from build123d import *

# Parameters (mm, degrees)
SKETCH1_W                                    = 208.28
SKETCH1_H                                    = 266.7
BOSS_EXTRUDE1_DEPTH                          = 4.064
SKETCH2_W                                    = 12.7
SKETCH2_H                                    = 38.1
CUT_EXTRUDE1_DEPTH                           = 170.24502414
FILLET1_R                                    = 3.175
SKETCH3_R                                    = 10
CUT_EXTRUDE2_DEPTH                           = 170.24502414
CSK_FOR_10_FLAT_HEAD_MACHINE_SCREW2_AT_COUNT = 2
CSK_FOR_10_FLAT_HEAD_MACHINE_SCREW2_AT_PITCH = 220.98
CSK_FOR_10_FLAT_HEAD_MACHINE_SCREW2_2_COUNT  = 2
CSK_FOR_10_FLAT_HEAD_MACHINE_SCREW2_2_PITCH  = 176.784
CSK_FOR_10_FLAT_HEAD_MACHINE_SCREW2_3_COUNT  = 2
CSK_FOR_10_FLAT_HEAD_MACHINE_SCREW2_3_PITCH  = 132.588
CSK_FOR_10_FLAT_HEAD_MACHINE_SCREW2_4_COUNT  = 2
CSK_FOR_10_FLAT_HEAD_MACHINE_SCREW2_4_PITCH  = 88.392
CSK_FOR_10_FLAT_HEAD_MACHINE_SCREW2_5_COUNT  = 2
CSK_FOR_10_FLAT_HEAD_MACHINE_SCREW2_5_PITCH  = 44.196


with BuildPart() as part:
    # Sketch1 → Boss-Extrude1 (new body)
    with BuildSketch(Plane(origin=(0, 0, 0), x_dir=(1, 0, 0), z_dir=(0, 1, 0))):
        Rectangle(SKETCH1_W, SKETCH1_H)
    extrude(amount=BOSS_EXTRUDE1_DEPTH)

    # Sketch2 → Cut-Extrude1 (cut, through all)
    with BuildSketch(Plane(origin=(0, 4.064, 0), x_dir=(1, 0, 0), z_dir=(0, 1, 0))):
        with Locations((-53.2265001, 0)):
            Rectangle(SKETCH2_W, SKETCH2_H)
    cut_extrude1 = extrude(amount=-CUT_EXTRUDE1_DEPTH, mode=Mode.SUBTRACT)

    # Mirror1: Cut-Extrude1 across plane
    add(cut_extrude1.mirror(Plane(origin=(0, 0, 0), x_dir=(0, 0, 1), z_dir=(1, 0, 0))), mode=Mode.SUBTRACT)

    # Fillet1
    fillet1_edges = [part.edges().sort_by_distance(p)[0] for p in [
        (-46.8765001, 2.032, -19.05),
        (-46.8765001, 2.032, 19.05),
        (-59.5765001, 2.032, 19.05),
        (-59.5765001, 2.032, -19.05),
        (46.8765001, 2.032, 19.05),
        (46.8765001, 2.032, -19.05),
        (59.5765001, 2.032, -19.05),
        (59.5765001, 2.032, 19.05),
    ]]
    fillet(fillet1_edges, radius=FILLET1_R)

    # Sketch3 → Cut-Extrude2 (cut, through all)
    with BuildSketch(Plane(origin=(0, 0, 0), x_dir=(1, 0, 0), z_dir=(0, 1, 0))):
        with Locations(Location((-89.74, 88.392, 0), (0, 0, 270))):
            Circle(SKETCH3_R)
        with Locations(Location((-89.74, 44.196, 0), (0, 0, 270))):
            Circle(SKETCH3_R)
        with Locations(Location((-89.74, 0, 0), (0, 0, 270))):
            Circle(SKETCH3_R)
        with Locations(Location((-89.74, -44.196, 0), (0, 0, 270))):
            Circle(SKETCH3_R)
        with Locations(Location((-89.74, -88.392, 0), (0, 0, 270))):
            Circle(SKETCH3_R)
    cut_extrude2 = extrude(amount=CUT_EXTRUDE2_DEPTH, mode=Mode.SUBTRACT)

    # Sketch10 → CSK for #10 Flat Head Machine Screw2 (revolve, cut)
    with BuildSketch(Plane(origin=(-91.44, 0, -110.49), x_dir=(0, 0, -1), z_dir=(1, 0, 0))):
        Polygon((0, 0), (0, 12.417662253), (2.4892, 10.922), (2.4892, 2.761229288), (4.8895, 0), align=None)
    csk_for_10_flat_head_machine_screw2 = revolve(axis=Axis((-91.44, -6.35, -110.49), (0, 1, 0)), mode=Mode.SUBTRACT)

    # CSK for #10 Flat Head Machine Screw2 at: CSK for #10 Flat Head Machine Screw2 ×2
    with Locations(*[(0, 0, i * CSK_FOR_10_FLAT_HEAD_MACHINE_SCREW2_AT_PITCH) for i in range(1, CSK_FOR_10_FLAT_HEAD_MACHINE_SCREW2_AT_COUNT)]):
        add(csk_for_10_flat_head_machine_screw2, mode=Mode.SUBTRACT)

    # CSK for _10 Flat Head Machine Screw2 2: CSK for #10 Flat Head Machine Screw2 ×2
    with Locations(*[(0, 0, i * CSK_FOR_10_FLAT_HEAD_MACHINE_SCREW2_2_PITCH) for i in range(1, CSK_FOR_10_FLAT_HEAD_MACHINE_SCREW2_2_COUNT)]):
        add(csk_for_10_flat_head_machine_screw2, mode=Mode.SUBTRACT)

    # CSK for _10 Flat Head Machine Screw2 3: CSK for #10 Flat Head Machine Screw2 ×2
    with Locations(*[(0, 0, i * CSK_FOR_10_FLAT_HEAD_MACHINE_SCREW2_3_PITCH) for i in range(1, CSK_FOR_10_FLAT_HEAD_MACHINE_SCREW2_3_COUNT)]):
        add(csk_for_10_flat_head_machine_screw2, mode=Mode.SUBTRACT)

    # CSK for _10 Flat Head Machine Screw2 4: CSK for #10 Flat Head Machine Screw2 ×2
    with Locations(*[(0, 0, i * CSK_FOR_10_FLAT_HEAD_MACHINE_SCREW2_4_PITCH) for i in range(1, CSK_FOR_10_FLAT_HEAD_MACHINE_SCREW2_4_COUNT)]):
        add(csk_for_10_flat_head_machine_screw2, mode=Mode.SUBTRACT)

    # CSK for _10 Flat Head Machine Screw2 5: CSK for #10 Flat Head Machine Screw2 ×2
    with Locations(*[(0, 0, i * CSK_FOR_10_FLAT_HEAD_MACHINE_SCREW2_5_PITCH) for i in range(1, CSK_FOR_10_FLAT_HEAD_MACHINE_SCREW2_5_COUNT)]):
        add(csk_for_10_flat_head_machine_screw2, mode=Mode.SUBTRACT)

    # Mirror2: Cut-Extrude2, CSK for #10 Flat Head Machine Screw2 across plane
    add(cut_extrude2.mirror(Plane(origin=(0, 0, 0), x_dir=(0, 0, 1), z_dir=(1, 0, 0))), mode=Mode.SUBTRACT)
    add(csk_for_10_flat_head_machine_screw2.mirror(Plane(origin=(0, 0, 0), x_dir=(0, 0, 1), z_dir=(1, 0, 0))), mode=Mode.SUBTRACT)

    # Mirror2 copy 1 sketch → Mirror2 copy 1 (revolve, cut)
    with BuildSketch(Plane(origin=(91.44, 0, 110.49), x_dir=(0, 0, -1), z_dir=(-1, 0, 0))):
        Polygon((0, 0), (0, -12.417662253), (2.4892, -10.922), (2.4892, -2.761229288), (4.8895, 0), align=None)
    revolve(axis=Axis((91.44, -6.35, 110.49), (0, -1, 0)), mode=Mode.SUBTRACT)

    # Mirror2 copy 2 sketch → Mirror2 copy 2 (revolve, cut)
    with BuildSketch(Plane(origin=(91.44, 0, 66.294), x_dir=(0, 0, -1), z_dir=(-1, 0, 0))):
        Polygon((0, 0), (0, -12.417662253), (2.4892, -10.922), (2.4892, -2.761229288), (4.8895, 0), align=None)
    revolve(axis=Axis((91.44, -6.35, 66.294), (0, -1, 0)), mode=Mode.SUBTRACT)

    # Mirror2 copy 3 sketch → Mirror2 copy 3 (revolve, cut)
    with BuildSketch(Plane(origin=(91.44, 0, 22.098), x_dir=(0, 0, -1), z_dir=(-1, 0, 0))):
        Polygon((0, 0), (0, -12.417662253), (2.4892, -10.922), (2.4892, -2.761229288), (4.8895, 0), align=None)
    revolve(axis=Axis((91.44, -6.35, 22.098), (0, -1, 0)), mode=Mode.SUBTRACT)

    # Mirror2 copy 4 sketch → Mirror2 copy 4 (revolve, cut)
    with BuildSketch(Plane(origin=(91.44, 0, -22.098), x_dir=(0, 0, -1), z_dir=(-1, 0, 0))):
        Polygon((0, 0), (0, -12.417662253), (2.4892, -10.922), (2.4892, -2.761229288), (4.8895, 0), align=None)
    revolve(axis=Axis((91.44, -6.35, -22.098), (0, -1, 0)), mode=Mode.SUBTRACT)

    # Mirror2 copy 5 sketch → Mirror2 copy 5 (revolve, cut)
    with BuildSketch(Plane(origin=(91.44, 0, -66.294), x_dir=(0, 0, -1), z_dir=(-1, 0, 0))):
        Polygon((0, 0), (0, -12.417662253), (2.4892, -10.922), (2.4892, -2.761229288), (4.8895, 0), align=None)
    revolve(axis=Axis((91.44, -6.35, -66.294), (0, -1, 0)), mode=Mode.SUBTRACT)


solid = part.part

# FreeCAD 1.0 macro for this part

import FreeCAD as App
import Part
import Sketcher
Q = App.Units.Quantity


def edges_at(feature, points):
    """Names of the edges that pass closest to the given points."""
    edges = feature.Shape.Edges
    near = lambda p: min(range(len(edges)), key=lambda i: edges[i].distToShape(Part.Vertex(*p))[0])
    return sorted({f"Edge{near(p) + 1}" for p in points})


def add_polygon(sketch, points):
    """Adds a closed chain of lines whose ends are joined by coincident constraints."""
    first, n = sketch.GeometryCount, len(points)
    for a, b in zip(points, points[1:] + points[:1]):
        sketch.addGeometry(Part.LineSegment(App.Vector(*a, 0), App.Vector(*b, 0)), False)
    for i in range(n):
        sketch.addConstraint(Sketcher.Constraint("Coincident", first + i, 2, first + (i + 1) % n, 1))

doc = App.newDocument("Part")
params = doc.addObject("Spreadsheet::Sheet", "Params")
for row, (alias, value) in enumerate([
    ("sketch1_width", "8.2 in"),
    ("sketch1_height", "10.5 in"),
    ("pad1_length", "0.16 in"),
    ("sketch2_width", "0.5 in"),
    ("sketch2_height", "1.5 in"),
    ("fillet_radius", "0.125 in"),
    ("groove_angle", "360 deg"),
    ("linearpattern_pitch", "8.7 in"),
    ("linearpattern2_pitch", "6.96 in"),
    ("linearpattern3_pitch", "5.22 in"),
    ("linearpattern4_pitch", "3.48 in"),
    ("linearpattern5_pitch", "1.74 in"),
    ("groove2_angle", "360 deg"),
    ("groove3_angle", "360 deg"),
    ("groove4_angle", "360 deg"),
    ("groove5_angle", "360 deg"),
    ("groove6_angle", "360 deg"),
], start=1):
    params.set(f"A{row}", alias)
    params.set(f"B{row}", "=" + value)
    params.setAlias(f"B{row}", alias)

body = doc.addObject("PartDesign::Body", "Body")

# Sketch on XZ plane
sketch1 = body.newObject("Sketcher::SketchObject", "Sketch")
sketch1.AttachmentSupport = (doc.getObject("XZ_Plane"), [""])
sketch1.MapMode = "FlatFace"
add_polygon(sketch1, [(-104, -133), (-104, 133), (104, 133), (104, -133)])  # lines 0-3
sketch1.addConstraint(Sketcher.Constraint("Vertical", 0))
sketch1.addConstraint(Sketcher.Constraint("Horizontal", 1))
sketch1.addConstraint(Sketcher.Constraint("Vertical", 2))
sketch1.addConstraint(Sketcher.Constraint("Horizontal", 3))
sketch1.addConstraint(Sketcher.Constraint("Symmetric", 0, 2, 2, 2, -1, 1))
sketch1.addConstraint(Sketcher.Constraint("DistanceX", 1, 1, 1, 2, Q("8.2 in")))
sketch1.addConstraint(Sketcher.Constraint("DistanceY", 0, 1, 0, 2, Q("10.5 in")))
sketch1.setExpression("Constraints[9]", "Params.sketch1_width")
sketch1.setExpression("Constraints[10]", "Params.sketch1_height")
pad1 = body.newObject("PartDesign::Pad", "Pad")
pad1.Profile = sketch1
pad1.setExpression("Length", "Params.pad1_length")
pad1.Reversed = True

# Sketch on XZ plane
sketch2 = body.newObject("Sketcher::SketchObject", "Sketch001")
sketch2.AttachmentSupport = (doc.getObject("XZ_Plane"), [""])
sketch2.MapMode = "FlatFace"
sketch2.AttachmentOffset = App.Placement(App.Vector(0, 0, -0.16 * 25.4), App.Rotation())
add_polygon(sketch2, [(-60, -19), (-60, 19), (-47, 19), (-47, -19)])  # lines 0-3
sketch2.addConstraint(Sketcher.Constraint("Vertical", 0))
sketch2.addConstraint(Sketcher.Constraint("Horizontal", 1))
sketch2.addConstraint(Sketcher.Constraint("Vertical", 2))
sketch2.addConstraint(Sketcher.Constraint("Horizontal", 3))
sketch2.addConstraint(Sketcher.Constraint("DistanceX", 1, 1, 1, 2, Q("0.5 in")))
sketch2.addConstraint(Sketcher.Constraint("DistanceY", 0, 1, 0, 2, Q("1.5 in")))
sketch2.addConstraint(Sketcher.Constraint("DistanceY", -1, 1, 0, 2, Q("0.75 in")))
sketch2.addConstraint(Sketcher.Constraint("DistanceX", 0, 2, -1, 1, 59.5765))
sketch2.setExpression("Constraints[8]", "Params.sketch2_width")
sketch2.setExpression("Constraints[9]", "Params.sketch2_height")
pocket1 = body.newObject("PartDesign::Pocket", "Pocket")
pocket1.Profile = sketch2
pocket1.Type = "ThroughAll"
pocket1.Reversed = True
doc.recompute()

mirrored = body.newObject("PartDesign::Mirrored", "Mirrored")
mirrored.Originals = [pocket1]
mirrored.MirrorPlane = (doc.getObject("YZ_Plane"), [""])
body.Tip = mirrored
doc.recompute()

fillet = body.newObject("PartDesign::Fillet", "Fillet")
fillet.Base = (mirrored, edges_at(mirrored, [
    (-46.877, 2.032, -19.05),
    (-46.877, 2.032, 19.05),
    (-59.577, 2.032, 19.05),
    (-59.577, 2.032, -19.05),
    (46.877, 2.032, 19.05),
    (46.877, 2.032, -19.05),
    (59.577, 2.032, -19.05),
    (59.577, 2.032, 19.05),
]))
fillet.setExpression("Radius", "Params.fillet_radius")

# Sketch on XZ plane
sketch3 = body.newObject("Sketcher::SketchObject", "Sketch002")
sketch3.AttachmentSupport = (doc.getObject("XZ_Plane"), [""])
sketch3.MapMode = "FlatFace"
sketch3.addGeometry(Part.Circle(App.Vector(-90, -88, 0), App.Vector(0, 0, 1), 10), False)
sketch3.addGeometry(Part.Circle(App.Vector(-90, -44, 0), App.Vector(0, 0, 1), 10), False)
sketch3.addGeometry(Part.Circle(App.Vector(-90, 0, 0), App.Vector(0, 0, 1), 10), False)
sketch3.addGeometry(Part.Circle(App.Vector(-90, 44, 0), App.Vector(0, 0, 1), 10), False)
sketch3.addGeometry(Part.Circle(App.Vector(-90, 88, 0), App.Vector(0, 0, 1), 10), False)
sketch3.addConstraint(Sketcher.Constraint("Equal", 0, 1))
sketch3.addConstraint(Sketcher.Constraint("Equal", 1, 2))
sketch3.addConstraint(Sketcher.Constraint("Equal", 2, 3))
sketch3.addConstraint(Sketcher.Constraint("Equal", 3, 4))
sketch3.addConstraint(Sketcher.Constraint("Symmetric", 1, 3, 3, 3, -1))
sketch3.addConstraint(Sketcher.Constraint("Symmetric", 0, 3, 4, 3, -1))
sketch3.addConstraint(Sketcher.Constraint("PointOnObject", 2, 3, -1))
sketch3.addConstraint(Sketcher.Constraint("Vertical", 0, 3, 1, 3))
sketch3.addConstraint(Sketcher.Constraint("Vertical", 1, 3, 2, 3))
sketch3.addConstraint(Sketcher.Constraint("Diameter", 0, 20.0))
sketch3.addConstraint(Sketcher.Constraint("DistanceY", 0, 3, -1, 1, Q("3.48 in")))
sketch3.addConstraint(Sketcher.Constraint("DistanceY", 1, 3, -1, 1, Q("1.74 in")))
sketch3.addConstraint(Sketcher.Constraint("DistanceX", 0, 3, -1, 1, 89.74))
pocket2 = body.newObject("PartDesign::Pocket", "Pocket001")
pocket2.Profile = sketch3
pocket2.Type = "ThroughAll"

# Sketch on YZ plane
sketch4 = body.newObject("Sketcher::SketchObject", "Sketch003")
sketch4.AttachmentSupport = (doc.getObject("YZ_Plane"), [""])
sketch4.MapMode = "FlatFace"
sketch4.AttachmentOffset = App.Placement(App.Vector(0, 0, -3.6 * 25.4), App.Rotation())
add_polygon(sketch4, [(12.4, -110.5), (0, -110.5), (0, -115.4), (2.8, -113), (10.9, -113)])  # lines 0-4
sketch4.addGeometry(Part.LineSegment(App.Vector(0, -110.5, 0), App.Vector(12.4, -110.5, 0)), True)  # axis
sketch4.addConstraint(Sketcher.Constraint("Horizontal", 0))
sketch4.addConstraint(Sketcher.Constraint("Vertical", 1))
sketch4.addConstraint(Sketcher.Constraint("Horizontal", 3))
sketch4.addConstraint(Sketcher.Constraint("Horizontal", 5))
sketch4.addConstraint(Sketcher.Constraint("Coincident", 5, 1, 0, 2))
sketch4.addConstraint(Sketcher.Constraint("PointOnObject", 0, 2, -2))
sketch4.addConstraint(Sketcher.Constraint("Equal", 0, 5))
sketch4.addConstraint(Sketcher.Constraint("Angle", 2, Q("41 deg")))
sketch4.addConstraint(Sketcher.Constraint("Angle", 4, Q("59 deg")))
sketch4.addConstraint(Sketcher.Constraint("DistanceY", 0, 2, -1, 1, Q("4.35 in")))
sketch4.addConstraint(Sketcher.Constraint("DistanceX", -1, 1, 3, 2, Q("0.43 in")))
sketch4.addConstraint(Sketcher.Constraint("DistanceY", 1, 2, 1, 1, Q("0.1925 in")))
sketch4.addConstraint(Sketcher.Constraint("DistanceY", 2, 2, -1, 1, Q("4.448 in")))
groove = body.newObject("PartDesign::Groove", "Groove")
groove.Profile = sketch4
groove.ReferenceAxis = (sketch4, ["Axis0"])
groove.setExpression("Angle", "Params.groove_angle")
doc.recompute()

linearpattern = body.newObject("PartDesign::LinearPattern", "LinearPattern")
linearpattern.Originals = [groove]
linearpattern.Direction = (doc.getObject("Z_Axis"), [""])
linearpattern.Mode = "offset"
linearpattern.setExpression("Offset", "Params.linearpattern_pitch")
linearpattern.Occurrences = 2
body.Tip = linearpattern
doc.recompute()

linearpattern2 = body.newObject("PartDesign::LinearPattern", "LinearPattern001")
linearpattern2.Originals = [groove]
linearpattern2.Direction = (doc.getObject("Z_Axis"), [""])
linearpattern2.Mode = "offset"
linearpattern2.setExpression("Offset", "Params.linearpattern2_pitch")
linearpattern2.Occurrences = 2
body.Tip = linearpattern2
doc.recompute()

linearpattern3 = body.newObject("PartDesign::LinearPattern", "LinearPattern002")
linearpattern3.Originals = [groove]
linearpattern3.Direction = (doc.getObject("Z_Axis"), [""])
linearpattern3.Mode = "offset"
linearpattern3.setExpression("Offset", "Params.linearpattern3_pitch")
linearpattern3.Occurrences = 2
body.Tip = linearpattern3
doc.recompute()

linearpattern4 = body.newObject("PartDesign::LinearPattern", "LinearPattern003")
linearpattern4.Originals = [groove]
linearpattern4.Direction = (doc.getObject("Z_Axis"), [""])
linearpattern4.Mode = "offset"
linearpattern4.setExpression("Offset", "Params.linearpattern4_pitch")
linearpattern4.Occurrences = 2
body.Tip = linearpattern4
doc.recompute()

linearpattern5 = body.newObject("PartDesign::LinearPattern", "LinearPattern004")
linearpattern5.Originals = [groove]
linearpattern5.Direction = (doc.getObject("Z_Axis"), [""])
linearpattern5.Mode = "offset"
linearpattern5.setExpression("Offset", "Params.linearpattern5_pitch")
linearpattern5.Occurrences = 2
body.Tip = linearpattern5
doc.recompute()

mirrored2 = body.newObject("PartDesign::Mirrored", "Mirrored001")
mirrored2.Originals = [pocket2, groove]
mirrored2.MirrorPlane = (doc.getObject("YZ_Plane"), [""])
body.Tip = mirrored2

# Sketch on YZ plane
sketch5 = body.newObject("Sketcher::SketchObject", "Sketch004")
sketch5.AttachmentSupport = (doc.getObject("YZ_Plane"), [""])
sketch5.MapMode = "FlatFace"
sketch5.AttachmentOffset = App.Placement(App.Vector(0, 0, 3.6 * 25.4), App.Rotation())
add_polygon(sketch5, [(0, 110.5), (12.4, 110.5), (10.9, 108), (2.8, 108), (0, 105.6)])  # lines 0-4
sketch5.addGeometry(Part.LineSegment(App.Vector(12.4, 110.5, 0), App.Vector(0, 110.5, 0)), True)  # axis
sketch5.addConstraint(Sketcher.Constraint("Horizontal", 0))
sketch5.addConstraint(Sketcher.Constraint("Horizontal", 2))
sketch5.addConstraint(Sketcher.Constraint("Vertical", 4))
sketch5.addConstraint(Sketcher.Constraint("Horizontal", 5))
sketch5.addConstraint(Sketcher.Constraint("Coincident", 5, 1, 0, 2))
sketch5.addConstraint(Sketcher.Constraint("PointOnObject", 3, 2, -2))
sketch5.addConstraint(Sketcher.Constraint("PointOnObject", 5, 2, -2))
sketch5.addConstraint(Sketcher.Constraint("Angle", 1, Q("-121 deg")))
sketch5.addConstraint(Sketcher.Constraint("Angle", 3, Q("-139 deg")))
sketch5.addConstraint(Sketcher.Constraint("DistanceY", -1, 1, 0, 2, Q("4.35 in")))
sketch5.addConstraint(Sketcher.Constraint("DistanceX", -1, 1, 1, 2, Q("0.43 in")))
sketch5.addConstraint(Sketcher.Constraint("DistanceY", 4, 1, 4, 2, Q("0.1925 in")))
sketch5.addConstraint(Sketcher.Constraint("DistanceY", -1, 1, 1, 2, Q("4.252 in")))
groove2 = body.newObject("PartDesign::Groove", "Groove001")
groove2.Profile = sketch5
groove2.ReferenceAxis = (sketch5, ["Axis0"])
groove2.setExpression("Angle", "Params.groove2_angle")

# Sketch on YZ plane
sketch6 = body.newObject("Sketcher::SketchObject", "Sketch005")
sketch6.AttachmentSupport = (doc.getObject("YZ_Plane"), [""])
sketch6.MapMode = "FlatFace"
sketch6.AttachmentOffset = App.Placement(App.Vector(0, 0, 3.6 * 25.4), App.Rotation())
add_polygon(sketch6, [(0, 66.3), (12.4, 66.3), (10.9, 63.8), (2.8, 63.8), (0, 61.4)])  # lines 0-4
sketch6.addGeometry(Part.LineSegment(App.Vector(12.4, 66.3, 0), App.Vector(0, 66.3, 0)), True)  # axis
sketch6.addConstraint(Sketcher.Constraint("Horizontal", 0))
sketch6.addConstraint(Sketcher.Constraint("Horizontal", 2))
sketch6.addConstraint(Sketcher.Constraint("Vertical", 4))
sketch6.addConstraint(Sketcher.Constraint("Horizontal", 5))
sketch6.addConstraint(Sketcher.Constraint("Coincident", 5, 1, 0, 2))
sketch6.addConstraint(Sketcher.Constraint("PointOnObject", 3, 2, -2))
sketch6.addConstraint(Sketcher.Constraint("PointOnObject", 5, 2, -2))
sketch6.addConstraint(Sketcher.Constraint("Angle", 1, Q("-121 deg")))
sketch6.addConstraint(Sketcher.Constraint("Angle", 3, Q("-139 deg")))
sketch6.addConstraint(Sketcher.Constraint("DistanceY", -1, 1, 0, 2, Q("2.61 in")))
sketch6.addConstraint(Sketcher.Constraint("DistanceX", -1, 1, 1, 2, Q("0.43 in")))
sketch6.addConstraint(Sketcher.Constraint("DistanceY", 4, 1, 4, 2, Q("0.1925 in")))
sketch6.addConstraint(Sketcher.Constraint("DistanceY", -1, 1, 1, 2, Q("2.512 in")))
groove3 = body.newObject("PartDesign::Groove", "Groove002")
groove3.Profile = sketch6
groove3.ReferenceAxis = (sketch6, ["Axis0"])
groove3.setExpression("Angle", "Params.groove3_angle")

# Sketch on YZ plane
sketch7 = body.newObject("Sketcher::SketchObject", "Sketch006")
sketch7.AttachmentSupport = (doc.getObject("YZ_Plane"), [""])
sketch7.MapMode = "FlatFace"
sketch7.AttachmentOffset = App.Placement(App.Vector(0, 0, 3.6 * 25.4), App.Rotation())
add_polygon(sketch7, [(0, 22.1), (12.4, 22.1), (10.9, 19.6), (2.8, 19.6), (0, 17.2)])  # lines 0-4
sketch7.addGeometry(Part.LineSegment(App.Vector(12.4, 22.1, 0), App.Vector(0, 22.1, 0)), True)  # axis
sketch7.addConstraint(Sketcher.Constraint("Horizontal", 0))
sketch7.addConstraint(Sketcher.Constraint("Horizontal", 2))
sketch7.addConstraint(Sketcher.Constraint("Vertical", 4))
sketch7.addConstraint(Sketcher.Constraint("Horizontal", 5))
sketch7.addConstraint(Sketcher.Constraint("Coincident", 5, 1, 0, 2))
sketch7.addConstraint(Sketcher.Constraint("PointOnObject", 3, 2, -2))
sketch7.addConstraint(Sketcher.Constraint("PointOnObject", 5, 2, -2))
sketch7.addConstraint(Sketcher.Constraint("Angle", 1, Q("-121 deg")))
sketch7.addConstraint(Sketcher.Constraint("Angle", 3, Q("-139 deg")))
sketch7.addConstraint(Sketcher.Constraint("DistanceY", -1, 1, 0, 2, Q("0.87 in")))
sketch7.addConstraint(Sketcher.Constraint("DistanceX", -1, 1, 1, 2, Q("0.43 in")))
sketch7.addConstraint(Sketcher.Constraint("DistanceY", 4, 1, 4, 2, Q("0.1925 in")))
sketch7.addConstraint(Sketcher.Constraint("DistanceY", -1, 1, 1, 2, Q("0.772 in")))
groove4 = body.newObject("PartDesign::Groove", "Groove003")
groove4.Profile = sketch7
groove4.ReferenceAxis = (sketch7, ["Axis0"])
groove4.setExpression("Angle", "Params.groove4_angle")

# Sketch on YZ plane
sketch8 = body.newObject("Sketcher::SketchObject", "Sketch007")
sketch8.AttachmentSupport = (doc.getObject("YZ_Plane"), [""])
sketch8.MapMode = "FlatFace"
sketch8.AttachmentOffset = App.Placement(App.Vector(0, 0, 3.6 * 25.4), App.Rotation())
add_polygon(sketch8, [(0, -22.1), (12.4, -22.1), (10.9, -24.6), (2.8, -24.6), (0, -27)])  # lines 0-4
sketch8.addGeometry(Part.LineSegment(App.Vector(12.4, -22.1, 0), App.Vector(0, -22.1, 0)), True)  # axis
sketch8.addConstraint(Sketcher.Constraint("Horizontal", 0))
sketch8.addConstraint(Sketcher.Constraint("Horizontal", 2))
sketch8.addConstraint(Sketcher.Constraint("Vertical", 4))
sketch8.addConstraint(Sketcher.Constraint("Horizontal", 5))
sketch8.addConstraint(Sketcher.Constraint("Coincident", 5, 1, 0, 2))
sketch8.addConstraint(Sketcher.Constraint("PointOnObject", 3, 2, -2))
sketch8.addConstraint(Sketcher.Constraint("PointOnObject", 5, 2, -2))
sketch8.addConstraint(Sketcher.Constraint("Angle", 1, Q("-121 deg")))
sketch8.addConstraint(Sketcher.Constraint("Angle", 3, Q("-139 deg")))
sketch8.addConstraint(Sketcher.Constraint("DistanceY", 0, 2, -1, 1, Q("0.87 in")))
sketch8.addConstraint(Sketcher.Constraint("DistanceX", -1, 1, 1, 2, Q("0.43 in")))
sketch8.addConstraint(Sketcher.Constraint("DistanceY", 4, 1, 4, 2, Q("0.1925 in")))
sketch8.addConstraint(Sketcher.Constraint("DistanceY", 1, 2, -1, 1, Q("0.968 in")))
groove5 = body.newObject("PartDesign::Groove", "Groove004")
groove5.Profile = sketch8
groove5.ReferenceAxis = (sketch8, ["Axis0"])
groove5.setExpression("Angle", "Params.groove5_angle")

# Sketch on YZ plane
sketch9 = body.newObject("Sketcher::SketchObject", "Sketch008")
sketch9.AttachmentSupport = (doc.getObject("YZ_Plane"), [""])
sketch9.MapMode = "FlatFace"
sketch9.AttachmentOffset = App.Placement(App.Vector(0, 0, 3.6 * 25.4), App.Rotation())
add_polygon(sketch9, [(0, -66.3), (12.4, -66.3), (10.9, -68.8), (2.8, -68.8), (0, -71.2)])  # lines 0-4
sketch9.addGeometry(Part.LineSegment(App.Vector(12.4, -66.3, 0), App.Vector(0, -66.3, 0)), True)  # axis
sketch9.addConstraint(Sketcher.Constraint("Horizontal", 0))
sketch9.addConstraint(Sketcher.Constraint("Horizontal", 2))
sketch9.addConstraint(Sketcher.Constraint("Vertical", 4))
sketch9.addConstraint(Sketcher.Constraint("Horizontal", 5))
sketch9.addConstraint(Sketcher.Constraint("Coincident", 5, 1, 0, 2))
sketch9.addConstraint(Sketcher.Constraint("PointOnObject", 3, 2, -2))
sketch9.addConstraint(Sketcher.Constraint("PointOnObject", 5, 2, -2))
sketch9.addConstraint(Sketcher.Constraint("Angle", 1, Q("-121 deg")))
sketch9.addConstraint(Sketcher.Constraint("Angle", 3, Q("-139 deg")))
sketch9.addConstraint(Sketcher.Constraint("DistanceY", 0, 2, -1, 1, Q("2.61 in")))
sketch9.addConstraint(Sketcher.Constraint("DistanceX", -1, 1, 1, 2, Q("0.43 in")))
sketch9.addConstraint(Sketcher.Constraint("DistanceY", 4, 1, 4, 2, Q("0.1925 in")))
sketch9.addConstraint(Sketcher.Constraint("DistanceY", 1, 2, -1, 1, Q("2.708 in")))
groove6 = body.newObject("PartDesign::Groove", "Groove005")
groove6.Profile = sketch9
groove6.ReferenceAxis = (sketch9, ["Axis0"])
groove6.setExpression("Angle", "Params.groove6_angle")

doc.recompute()
